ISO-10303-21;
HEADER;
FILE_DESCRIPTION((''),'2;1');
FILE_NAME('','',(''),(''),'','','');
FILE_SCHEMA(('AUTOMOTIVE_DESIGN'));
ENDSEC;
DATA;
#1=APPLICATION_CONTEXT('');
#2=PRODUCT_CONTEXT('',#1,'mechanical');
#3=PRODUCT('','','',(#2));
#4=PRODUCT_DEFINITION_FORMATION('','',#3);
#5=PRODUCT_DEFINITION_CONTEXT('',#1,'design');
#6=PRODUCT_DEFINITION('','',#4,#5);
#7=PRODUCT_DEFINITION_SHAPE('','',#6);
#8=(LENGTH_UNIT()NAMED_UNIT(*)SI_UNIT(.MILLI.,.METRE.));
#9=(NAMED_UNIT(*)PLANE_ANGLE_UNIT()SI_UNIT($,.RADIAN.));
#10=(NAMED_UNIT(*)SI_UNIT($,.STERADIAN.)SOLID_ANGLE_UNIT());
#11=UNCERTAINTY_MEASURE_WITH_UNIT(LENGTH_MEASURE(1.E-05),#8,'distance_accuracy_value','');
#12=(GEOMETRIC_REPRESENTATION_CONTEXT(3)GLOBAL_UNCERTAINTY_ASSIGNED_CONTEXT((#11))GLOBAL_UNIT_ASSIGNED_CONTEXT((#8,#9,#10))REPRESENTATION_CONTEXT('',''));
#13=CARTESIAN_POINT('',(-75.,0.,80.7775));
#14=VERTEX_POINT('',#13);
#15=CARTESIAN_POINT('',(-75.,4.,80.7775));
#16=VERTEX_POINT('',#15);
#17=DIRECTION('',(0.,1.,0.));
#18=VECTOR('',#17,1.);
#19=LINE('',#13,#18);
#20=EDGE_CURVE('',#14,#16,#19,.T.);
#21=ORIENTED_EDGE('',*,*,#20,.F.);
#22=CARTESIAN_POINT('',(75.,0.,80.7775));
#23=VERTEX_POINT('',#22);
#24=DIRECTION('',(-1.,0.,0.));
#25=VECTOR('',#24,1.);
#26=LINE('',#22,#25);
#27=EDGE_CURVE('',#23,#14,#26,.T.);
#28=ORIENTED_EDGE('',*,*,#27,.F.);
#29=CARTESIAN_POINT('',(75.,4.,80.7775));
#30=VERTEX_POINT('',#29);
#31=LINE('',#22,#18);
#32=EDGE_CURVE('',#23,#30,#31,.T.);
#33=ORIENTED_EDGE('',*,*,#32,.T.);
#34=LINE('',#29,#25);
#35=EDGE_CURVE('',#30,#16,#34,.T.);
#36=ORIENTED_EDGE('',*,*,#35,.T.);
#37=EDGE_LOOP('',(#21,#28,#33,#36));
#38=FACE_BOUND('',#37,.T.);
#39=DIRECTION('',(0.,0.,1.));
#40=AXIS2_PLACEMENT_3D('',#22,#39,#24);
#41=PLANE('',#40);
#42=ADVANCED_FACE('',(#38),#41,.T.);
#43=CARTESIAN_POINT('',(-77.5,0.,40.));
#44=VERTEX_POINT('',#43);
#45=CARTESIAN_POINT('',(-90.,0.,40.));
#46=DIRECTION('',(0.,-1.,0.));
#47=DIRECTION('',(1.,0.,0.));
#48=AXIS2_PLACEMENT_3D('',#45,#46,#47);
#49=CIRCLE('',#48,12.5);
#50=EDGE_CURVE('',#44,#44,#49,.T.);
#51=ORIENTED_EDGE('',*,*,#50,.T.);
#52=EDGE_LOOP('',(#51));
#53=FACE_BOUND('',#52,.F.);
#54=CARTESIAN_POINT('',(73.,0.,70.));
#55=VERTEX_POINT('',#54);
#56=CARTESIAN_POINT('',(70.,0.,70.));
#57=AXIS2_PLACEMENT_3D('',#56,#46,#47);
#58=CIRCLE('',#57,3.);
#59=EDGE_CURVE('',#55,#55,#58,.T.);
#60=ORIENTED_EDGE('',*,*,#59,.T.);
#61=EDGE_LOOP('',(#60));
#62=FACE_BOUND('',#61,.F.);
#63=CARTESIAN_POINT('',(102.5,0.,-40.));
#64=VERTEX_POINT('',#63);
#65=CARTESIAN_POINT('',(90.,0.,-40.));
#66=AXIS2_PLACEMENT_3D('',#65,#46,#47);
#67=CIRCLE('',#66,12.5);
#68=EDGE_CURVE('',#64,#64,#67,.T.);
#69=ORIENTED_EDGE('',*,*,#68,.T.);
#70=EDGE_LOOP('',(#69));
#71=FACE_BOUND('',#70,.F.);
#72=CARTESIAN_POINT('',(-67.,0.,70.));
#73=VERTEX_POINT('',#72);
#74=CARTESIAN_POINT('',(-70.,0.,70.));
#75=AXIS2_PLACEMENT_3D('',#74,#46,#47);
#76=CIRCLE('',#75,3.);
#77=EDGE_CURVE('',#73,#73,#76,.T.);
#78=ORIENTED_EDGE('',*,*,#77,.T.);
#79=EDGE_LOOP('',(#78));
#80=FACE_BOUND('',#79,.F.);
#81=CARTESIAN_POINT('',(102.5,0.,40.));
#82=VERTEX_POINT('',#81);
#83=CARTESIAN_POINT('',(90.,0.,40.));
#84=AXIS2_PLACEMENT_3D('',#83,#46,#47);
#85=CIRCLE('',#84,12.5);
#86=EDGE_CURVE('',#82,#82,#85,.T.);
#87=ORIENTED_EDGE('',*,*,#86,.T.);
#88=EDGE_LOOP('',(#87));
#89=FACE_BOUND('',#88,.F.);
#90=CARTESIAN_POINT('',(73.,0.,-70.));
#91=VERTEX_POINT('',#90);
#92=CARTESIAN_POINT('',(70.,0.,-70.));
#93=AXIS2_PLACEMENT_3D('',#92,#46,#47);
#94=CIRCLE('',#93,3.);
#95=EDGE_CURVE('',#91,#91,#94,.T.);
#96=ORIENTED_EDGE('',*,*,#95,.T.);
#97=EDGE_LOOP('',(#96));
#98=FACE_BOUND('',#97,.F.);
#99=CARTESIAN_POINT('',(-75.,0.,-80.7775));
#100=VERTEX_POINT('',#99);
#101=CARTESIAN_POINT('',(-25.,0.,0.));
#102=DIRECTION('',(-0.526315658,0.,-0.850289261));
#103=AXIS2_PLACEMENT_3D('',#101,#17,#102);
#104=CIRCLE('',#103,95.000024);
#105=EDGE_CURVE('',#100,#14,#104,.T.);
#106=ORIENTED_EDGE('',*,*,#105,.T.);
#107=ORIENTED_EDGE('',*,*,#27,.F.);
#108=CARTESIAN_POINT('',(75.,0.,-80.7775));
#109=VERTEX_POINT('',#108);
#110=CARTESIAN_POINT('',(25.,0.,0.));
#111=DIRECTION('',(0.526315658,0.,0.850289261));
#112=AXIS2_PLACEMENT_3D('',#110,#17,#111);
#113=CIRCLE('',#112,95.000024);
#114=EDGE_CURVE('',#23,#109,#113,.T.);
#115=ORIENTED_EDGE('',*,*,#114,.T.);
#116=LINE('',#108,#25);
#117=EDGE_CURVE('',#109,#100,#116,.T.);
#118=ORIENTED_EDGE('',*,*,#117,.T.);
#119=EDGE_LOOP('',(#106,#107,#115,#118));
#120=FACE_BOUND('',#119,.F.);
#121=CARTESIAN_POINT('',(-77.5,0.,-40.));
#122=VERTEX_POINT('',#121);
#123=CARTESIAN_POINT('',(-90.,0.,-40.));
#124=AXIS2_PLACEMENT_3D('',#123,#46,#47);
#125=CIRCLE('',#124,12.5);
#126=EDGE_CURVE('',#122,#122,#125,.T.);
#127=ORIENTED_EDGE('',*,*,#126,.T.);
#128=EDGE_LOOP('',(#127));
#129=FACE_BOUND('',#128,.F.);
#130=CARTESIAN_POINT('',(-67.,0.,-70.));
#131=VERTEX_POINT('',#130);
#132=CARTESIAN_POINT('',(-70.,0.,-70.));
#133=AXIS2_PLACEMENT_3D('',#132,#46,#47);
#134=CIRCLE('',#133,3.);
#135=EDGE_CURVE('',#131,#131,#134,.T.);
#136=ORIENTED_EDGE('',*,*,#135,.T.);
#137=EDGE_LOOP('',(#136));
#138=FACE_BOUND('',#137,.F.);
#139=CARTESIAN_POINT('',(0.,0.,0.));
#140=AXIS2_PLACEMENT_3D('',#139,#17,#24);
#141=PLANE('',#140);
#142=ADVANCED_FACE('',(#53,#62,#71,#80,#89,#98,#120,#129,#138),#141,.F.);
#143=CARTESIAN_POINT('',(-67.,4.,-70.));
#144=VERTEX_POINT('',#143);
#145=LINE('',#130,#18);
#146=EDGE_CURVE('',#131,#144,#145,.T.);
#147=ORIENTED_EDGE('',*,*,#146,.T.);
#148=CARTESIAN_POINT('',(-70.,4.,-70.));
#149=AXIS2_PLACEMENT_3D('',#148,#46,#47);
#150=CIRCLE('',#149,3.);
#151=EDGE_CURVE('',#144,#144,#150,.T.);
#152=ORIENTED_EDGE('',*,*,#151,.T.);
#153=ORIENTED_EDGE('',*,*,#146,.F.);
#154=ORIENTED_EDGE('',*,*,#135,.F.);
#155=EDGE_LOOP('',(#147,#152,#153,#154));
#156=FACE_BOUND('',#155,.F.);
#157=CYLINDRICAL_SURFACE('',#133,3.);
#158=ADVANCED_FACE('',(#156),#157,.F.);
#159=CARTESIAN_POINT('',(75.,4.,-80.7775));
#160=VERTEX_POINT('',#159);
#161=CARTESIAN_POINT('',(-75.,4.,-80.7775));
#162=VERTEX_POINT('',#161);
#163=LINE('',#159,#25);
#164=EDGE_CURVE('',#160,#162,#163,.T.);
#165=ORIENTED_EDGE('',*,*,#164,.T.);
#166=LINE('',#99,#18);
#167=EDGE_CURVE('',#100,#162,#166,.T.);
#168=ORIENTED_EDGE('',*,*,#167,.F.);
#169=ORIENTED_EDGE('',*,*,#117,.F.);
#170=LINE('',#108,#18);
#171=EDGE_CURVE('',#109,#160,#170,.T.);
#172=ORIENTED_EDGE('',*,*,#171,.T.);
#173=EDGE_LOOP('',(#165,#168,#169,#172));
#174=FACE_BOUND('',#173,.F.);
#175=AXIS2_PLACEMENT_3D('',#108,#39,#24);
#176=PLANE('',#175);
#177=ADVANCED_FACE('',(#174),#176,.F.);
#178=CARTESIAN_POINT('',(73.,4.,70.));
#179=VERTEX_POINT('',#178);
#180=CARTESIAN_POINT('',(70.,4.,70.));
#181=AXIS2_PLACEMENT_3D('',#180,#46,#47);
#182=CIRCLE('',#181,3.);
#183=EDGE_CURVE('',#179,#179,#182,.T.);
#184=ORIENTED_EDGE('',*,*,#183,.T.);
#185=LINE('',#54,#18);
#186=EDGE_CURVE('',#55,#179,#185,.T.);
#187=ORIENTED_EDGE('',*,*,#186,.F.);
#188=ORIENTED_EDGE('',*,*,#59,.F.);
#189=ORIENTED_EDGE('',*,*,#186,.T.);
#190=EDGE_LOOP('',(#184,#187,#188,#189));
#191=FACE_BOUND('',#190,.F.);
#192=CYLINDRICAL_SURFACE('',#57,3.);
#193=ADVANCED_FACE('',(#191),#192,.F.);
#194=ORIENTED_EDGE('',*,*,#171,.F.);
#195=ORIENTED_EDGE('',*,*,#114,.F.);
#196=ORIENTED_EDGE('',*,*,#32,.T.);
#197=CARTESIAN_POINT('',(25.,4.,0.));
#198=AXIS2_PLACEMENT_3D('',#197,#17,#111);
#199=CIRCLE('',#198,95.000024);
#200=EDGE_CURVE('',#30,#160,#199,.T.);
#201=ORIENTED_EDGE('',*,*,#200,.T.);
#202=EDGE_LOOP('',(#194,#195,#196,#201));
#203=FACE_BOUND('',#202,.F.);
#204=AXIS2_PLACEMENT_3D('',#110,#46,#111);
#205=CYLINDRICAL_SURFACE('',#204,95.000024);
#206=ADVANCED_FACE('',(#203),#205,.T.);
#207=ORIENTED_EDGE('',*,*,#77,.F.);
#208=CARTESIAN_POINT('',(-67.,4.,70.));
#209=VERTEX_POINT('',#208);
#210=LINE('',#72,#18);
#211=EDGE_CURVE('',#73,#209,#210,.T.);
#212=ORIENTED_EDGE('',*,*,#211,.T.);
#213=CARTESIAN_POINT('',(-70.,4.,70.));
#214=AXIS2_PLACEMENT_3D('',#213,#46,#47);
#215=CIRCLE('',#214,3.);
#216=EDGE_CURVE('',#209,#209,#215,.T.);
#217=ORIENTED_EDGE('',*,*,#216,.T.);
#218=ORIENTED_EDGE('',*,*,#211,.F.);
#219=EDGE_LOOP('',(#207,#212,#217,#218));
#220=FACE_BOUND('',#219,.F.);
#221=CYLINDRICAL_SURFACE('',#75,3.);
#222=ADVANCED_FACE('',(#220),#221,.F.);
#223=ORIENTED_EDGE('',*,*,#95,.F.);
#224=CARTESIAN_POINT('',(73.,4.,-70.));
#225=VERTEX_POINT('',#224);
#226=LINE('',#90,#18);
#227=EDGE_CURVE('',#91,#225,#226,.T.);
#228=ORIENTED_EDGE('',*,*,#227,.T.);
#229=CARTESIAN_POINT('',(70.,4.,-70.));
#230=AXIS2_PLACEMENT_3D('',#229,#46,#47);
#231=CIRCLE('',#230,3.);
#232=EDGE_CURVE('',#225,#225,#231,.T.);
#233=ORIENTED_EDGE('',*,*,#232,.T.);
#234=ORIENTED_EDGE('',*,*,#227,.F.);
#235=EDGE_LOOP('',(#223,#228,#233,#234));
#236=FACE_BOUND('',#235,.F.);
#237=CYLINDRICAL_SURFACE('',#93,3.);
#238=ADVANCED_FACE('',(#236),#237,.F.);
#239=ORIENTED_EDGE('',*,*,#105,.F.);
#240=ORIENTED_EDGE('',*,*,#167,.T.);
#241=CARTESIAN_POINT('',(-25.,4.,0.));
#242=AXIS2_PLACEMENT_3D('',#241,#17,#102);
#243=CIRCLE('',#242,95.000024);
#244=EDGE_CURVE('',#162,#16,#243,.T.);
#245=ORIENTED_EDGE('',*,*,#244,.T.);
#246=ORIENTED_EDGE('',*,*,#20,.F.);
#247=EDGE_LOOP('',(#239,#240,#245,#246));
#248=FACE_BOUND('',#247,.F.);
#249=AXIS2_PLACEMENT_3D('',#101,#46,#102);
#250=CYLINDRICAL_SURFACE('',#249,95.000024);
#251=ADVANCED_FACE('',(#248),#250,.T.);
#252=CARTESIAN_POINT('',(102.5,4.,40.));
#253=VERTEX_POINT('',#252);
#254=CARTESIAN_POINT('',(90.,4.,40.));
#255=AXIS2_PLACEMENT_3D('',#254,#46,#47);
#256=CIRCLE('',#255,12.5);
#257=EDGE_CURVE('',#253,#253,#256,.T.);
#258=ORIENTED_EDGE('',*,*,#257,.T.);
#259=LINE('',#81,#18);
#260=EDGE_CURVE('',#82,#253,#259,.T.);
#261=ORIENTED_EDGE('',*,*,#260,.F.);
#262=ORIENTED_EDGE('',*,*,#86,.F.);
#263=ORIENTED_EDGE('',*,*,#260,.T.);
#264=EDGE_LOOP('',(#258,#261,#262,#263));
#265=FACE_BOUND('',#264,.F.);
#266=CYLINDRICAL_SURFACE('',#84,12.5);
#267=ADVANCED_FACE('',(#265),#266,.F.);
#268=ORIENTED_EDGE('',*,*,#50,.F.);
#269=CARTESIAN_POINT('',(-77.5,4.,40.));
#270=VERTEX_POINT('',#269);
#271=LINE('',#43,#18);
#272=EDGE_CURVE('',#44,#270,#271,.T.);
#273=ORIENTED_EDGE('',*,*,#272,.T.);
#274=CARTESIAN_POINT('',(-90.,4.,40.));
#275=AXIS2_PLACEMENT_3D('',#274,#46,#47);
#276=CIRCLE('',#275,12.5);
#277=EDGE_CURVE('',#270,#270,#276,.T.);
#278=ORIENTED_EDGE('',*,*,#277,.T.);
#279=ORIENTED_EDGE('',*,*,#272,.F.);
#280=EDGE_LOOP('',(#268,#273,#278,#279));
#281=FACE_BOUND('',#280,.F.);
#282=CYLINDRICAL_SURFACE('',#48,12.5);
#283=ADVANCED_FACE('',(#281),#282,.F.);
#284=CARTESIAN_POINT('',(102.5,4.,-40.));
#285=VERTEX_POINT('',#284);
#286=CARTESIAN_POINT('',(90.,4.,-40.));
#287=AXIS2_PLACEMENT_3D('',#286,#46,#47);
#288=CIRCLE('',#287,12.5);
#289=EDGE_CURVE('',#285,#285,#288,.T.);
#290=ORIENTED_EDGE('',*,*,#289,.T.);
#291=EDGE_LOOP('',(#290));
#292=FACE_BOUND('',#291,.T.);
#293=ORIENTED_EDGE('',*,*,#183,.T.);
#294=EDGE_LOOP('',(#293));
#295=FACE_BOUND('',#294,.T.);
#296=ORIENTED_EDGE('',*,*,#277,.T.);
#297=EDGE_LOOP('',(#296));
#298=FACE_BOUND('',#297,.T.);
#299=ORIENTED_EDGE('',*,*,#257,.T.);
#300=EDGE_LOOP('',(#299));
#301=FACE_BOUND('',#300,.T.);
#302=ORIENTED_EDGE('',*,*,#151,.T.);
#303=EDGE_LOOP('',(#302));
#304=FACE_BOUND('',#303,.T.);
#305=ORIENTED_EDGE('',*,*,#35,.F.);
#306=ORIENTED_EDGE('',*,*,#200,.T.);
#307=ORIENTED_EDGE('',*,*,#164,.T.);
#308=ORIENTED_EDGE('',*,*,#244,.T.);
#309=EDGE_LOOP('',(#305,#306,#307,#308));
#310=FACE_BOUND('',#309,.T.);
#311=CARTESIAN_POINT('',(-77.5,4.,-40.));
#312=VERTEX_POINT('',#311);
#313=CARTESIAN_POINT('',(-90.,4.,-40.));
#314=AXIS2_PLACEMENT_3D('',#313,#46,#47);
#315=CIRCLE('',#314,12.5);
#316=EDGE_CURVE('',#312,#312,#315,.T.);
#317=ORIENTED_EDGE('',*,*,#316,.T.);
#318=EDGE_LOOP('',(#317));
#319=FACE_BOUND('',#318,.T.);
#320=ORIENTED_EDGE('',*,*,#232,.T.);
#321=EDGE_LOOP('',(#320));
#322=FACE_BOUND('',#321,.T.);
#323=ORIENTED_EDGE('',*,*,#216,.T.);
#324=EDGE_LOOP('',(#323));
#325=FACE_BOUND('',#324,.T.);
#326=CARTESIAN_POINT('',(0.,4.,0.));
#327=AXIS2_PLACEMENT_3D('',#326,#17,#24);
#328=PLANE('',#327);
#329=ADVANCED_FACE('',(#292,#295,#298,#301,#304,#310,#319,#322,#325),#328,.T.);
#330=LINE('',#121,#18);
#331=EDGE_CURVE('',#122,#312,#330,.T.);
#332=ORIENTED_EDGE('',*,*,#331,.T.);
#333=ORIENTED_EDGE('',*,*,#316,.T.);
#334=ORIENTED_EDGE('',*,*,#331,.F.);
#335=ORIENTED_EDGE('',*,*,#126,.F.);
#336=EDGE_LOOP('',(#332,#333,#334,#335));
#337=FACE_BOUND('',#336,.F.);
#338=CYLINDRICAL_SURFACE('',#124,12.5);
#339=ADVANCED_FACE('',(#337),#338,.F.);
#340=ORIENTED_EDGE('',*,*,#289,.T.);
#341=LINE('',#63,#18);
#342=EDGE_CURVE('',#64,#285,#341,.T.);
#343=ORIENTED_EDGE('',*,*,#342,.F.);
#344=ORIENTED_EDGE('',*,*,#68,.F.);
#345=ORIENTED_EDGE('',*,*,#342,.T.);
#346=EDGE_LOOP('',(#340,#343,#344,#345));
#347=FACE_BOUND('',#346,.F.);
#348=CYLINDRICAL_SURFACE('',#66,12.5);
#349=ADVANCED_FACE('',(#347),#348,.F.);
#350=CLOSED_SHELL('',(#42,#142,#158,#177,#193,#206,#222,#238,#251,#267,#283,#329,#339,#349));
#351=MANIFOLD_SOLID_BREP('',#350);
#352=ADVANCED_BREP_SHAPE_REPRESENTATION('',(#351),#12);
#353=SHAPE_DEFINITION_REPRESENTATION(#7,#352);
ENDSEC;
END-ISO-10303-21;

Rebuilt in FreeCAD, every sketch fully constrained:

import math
import FreeCAD as App
import Part
import Sketcher
from FreeCAD import Vector
Q = App.Units.Quantity

doc = App.newDocument("Part")
body = doc.addObject("PartDesign::Body", "Body")

sketch1 = body.newObject("Sketcher::SketchObject", "Sketch")
sketch1.AttachmentSupport = (doc.getObject("XZ_Plane"), [""])
sketch1.MapMode = "FlatFace"
sketch1.addGeometry([
    Part.LineSegment(Vector(-75, 81, 0), Vector(75, 81, 0)),
    Part.ArcOfCircle(Part.Circle(Vector(25, 0, 0), Vector(0, 0, 1), 95), math.radians(-58), math.radians(58)),
    Part.LineSegment(Vector(75, -81, 0), Vector(-75, -81, 0)),
    Part.ArcOfCircle(Part.Circle(Vector(-25, 0, 0), Vector(0, 0, 1), 95), math.radians(122), math.radians(238)),
], False)
sketch1.addConstraint([
    Sketcher.Constraint("Coincident", 0, 2, 1, 2),
    Sketcher.Constraint("Coincident", 1, 1, 2, 1),
    Sketcher.Constraint("Coincident", 2, 2, 3, 2),
    Sketcher.Constraint("Coincident", 3, 1, 0, 1),
    Sketcher.Constraint("Horizontal", 0),
    Sketcher.Constraint("Horizontal", 2),
    Sketcher.Constraint("Equal", 1, 3),
    Sketcher.Constraint("Symmetric", 1, 3, 3, 3, -1, 1),
    Sketcher.Constraint("Symmetric", 0, 2, 1, 1, -1),
    Sketcher.Constraint("Radius", 1, Q("95 mm")),
    Sketcher.Constraint("DistanceX", 0, 1, 0, 2, Q("150 mm")),
    Sketcher.Constraint("DistanceX", 3, 3, 1, 3, Q("50 mm")),
])
pad1 = body.newObject("PartDesign::Pad", "Pad")
pad1.Profile = sketch1
pad1.Length = 4
pad1.Reversed = True

sketch2 = body.newObject("Sketcher::SketchObject", "Sketch001")
sketch2.AttachmentSupport = (doc.getObject("XZ_Plane"), [""])
sketch2.MapMode = "FlatFace"
sketch2.addGeometry([
    Part.Circle(Vector(70, 70, 0), Vector(0, 0, 1), 3),
    Part.Circle(Vector(-70, 70, 0), Vector(0, 0, 1), 3),
    Part.Circle(Vector(-70, -70, 0), Vector(0, 0, 1), 3),
    Part.Circle(Vector(70, -70, 0), Vector(0, 0, 1), 3),
], False)
sketch2.addConstraint([
    Sketcher.Constraint("Equal", 0, 1),
    Sketcher.Constraint("Equal", 1, 2),
    Sketcher.Constraint("Equal", 2, 3),
    Sketcher.Constraint("Symmetric", 0, 3, 2, 3, -1, 1),
    Sketcher.Constraint("Symmetric", 1, 3, 3, 3, -1, 1),
    Sketcher.Constraint("Symmetric", 0, 3, 1, 3, -2),
    Sketcher.Constraint("Diameter", 0, Q("6 mm")),
    Sketcher.Constraint("DistanceX", -1, 1, 0, 3, Q("70 mm")),
    Sketcher.Constraint("DistanceY", -1, 1, 0, 3, Q("70 mm")),
])
pocket1 = body.newObject("PartDesign::Pocket", "Pocket")
pocket1.Profile = sketch2
pocket1.Type = "ThroughAll"

sketch3 = body.newObject("Sketcher::SketchObject", "Sketch002")
sketch3.AttachmentSupport = (doc.getObject("XZ_Plane"), [""])
sketch3.MapMode = "FlatFace"
sketch3.addGeometry([
    Part.Circle(Vector(-90, 40, 0), Vector(0, 0, 1), 12),
    Part.Circle(Vector(90, 40, 0), Vector(0, 0, 1), 12),
    Part.Circle(Vector(90, -40, 0), Vector(0, 0, 1), 12),
    Part.Circle(Vector(-90, -40, 0), Vector(0, 0, 1), 12),
], False)
sketch3.addConstraint([
    Sketcher.Constraint("Equal", 0, 1),
    Sketcher.Constraint("Equal", 1, 2),
    Sketcher.Constraint("Equal", 2, 3),
    Sketcher.Constraint("Symmetric", 0, 3, 2, 3, -1, 1),
    Sketcher.Constraint("Symmetric", 1, 3, 3, 3, -1, 1),
    Sketcher.Constraint("Symmetric", 0, 3, 1, 3, -2),
    Sketcher.Constraint("Diameter", 0, Q("25 mm")),
    Sketcher.Constraint("DistanceX", 0, 3, -1, 1, Q("90 mm")),
    Sketcher.Constraint("DistanceY", -1, 1, 0, 3, Q("40 mm")),
])
pocket2 = body.newObject("PartDesign::Pocket", "Pocket001")
pocket2.Profile = sketch3
pocket2.Type = "ThroughAll"

doc.recompute()
